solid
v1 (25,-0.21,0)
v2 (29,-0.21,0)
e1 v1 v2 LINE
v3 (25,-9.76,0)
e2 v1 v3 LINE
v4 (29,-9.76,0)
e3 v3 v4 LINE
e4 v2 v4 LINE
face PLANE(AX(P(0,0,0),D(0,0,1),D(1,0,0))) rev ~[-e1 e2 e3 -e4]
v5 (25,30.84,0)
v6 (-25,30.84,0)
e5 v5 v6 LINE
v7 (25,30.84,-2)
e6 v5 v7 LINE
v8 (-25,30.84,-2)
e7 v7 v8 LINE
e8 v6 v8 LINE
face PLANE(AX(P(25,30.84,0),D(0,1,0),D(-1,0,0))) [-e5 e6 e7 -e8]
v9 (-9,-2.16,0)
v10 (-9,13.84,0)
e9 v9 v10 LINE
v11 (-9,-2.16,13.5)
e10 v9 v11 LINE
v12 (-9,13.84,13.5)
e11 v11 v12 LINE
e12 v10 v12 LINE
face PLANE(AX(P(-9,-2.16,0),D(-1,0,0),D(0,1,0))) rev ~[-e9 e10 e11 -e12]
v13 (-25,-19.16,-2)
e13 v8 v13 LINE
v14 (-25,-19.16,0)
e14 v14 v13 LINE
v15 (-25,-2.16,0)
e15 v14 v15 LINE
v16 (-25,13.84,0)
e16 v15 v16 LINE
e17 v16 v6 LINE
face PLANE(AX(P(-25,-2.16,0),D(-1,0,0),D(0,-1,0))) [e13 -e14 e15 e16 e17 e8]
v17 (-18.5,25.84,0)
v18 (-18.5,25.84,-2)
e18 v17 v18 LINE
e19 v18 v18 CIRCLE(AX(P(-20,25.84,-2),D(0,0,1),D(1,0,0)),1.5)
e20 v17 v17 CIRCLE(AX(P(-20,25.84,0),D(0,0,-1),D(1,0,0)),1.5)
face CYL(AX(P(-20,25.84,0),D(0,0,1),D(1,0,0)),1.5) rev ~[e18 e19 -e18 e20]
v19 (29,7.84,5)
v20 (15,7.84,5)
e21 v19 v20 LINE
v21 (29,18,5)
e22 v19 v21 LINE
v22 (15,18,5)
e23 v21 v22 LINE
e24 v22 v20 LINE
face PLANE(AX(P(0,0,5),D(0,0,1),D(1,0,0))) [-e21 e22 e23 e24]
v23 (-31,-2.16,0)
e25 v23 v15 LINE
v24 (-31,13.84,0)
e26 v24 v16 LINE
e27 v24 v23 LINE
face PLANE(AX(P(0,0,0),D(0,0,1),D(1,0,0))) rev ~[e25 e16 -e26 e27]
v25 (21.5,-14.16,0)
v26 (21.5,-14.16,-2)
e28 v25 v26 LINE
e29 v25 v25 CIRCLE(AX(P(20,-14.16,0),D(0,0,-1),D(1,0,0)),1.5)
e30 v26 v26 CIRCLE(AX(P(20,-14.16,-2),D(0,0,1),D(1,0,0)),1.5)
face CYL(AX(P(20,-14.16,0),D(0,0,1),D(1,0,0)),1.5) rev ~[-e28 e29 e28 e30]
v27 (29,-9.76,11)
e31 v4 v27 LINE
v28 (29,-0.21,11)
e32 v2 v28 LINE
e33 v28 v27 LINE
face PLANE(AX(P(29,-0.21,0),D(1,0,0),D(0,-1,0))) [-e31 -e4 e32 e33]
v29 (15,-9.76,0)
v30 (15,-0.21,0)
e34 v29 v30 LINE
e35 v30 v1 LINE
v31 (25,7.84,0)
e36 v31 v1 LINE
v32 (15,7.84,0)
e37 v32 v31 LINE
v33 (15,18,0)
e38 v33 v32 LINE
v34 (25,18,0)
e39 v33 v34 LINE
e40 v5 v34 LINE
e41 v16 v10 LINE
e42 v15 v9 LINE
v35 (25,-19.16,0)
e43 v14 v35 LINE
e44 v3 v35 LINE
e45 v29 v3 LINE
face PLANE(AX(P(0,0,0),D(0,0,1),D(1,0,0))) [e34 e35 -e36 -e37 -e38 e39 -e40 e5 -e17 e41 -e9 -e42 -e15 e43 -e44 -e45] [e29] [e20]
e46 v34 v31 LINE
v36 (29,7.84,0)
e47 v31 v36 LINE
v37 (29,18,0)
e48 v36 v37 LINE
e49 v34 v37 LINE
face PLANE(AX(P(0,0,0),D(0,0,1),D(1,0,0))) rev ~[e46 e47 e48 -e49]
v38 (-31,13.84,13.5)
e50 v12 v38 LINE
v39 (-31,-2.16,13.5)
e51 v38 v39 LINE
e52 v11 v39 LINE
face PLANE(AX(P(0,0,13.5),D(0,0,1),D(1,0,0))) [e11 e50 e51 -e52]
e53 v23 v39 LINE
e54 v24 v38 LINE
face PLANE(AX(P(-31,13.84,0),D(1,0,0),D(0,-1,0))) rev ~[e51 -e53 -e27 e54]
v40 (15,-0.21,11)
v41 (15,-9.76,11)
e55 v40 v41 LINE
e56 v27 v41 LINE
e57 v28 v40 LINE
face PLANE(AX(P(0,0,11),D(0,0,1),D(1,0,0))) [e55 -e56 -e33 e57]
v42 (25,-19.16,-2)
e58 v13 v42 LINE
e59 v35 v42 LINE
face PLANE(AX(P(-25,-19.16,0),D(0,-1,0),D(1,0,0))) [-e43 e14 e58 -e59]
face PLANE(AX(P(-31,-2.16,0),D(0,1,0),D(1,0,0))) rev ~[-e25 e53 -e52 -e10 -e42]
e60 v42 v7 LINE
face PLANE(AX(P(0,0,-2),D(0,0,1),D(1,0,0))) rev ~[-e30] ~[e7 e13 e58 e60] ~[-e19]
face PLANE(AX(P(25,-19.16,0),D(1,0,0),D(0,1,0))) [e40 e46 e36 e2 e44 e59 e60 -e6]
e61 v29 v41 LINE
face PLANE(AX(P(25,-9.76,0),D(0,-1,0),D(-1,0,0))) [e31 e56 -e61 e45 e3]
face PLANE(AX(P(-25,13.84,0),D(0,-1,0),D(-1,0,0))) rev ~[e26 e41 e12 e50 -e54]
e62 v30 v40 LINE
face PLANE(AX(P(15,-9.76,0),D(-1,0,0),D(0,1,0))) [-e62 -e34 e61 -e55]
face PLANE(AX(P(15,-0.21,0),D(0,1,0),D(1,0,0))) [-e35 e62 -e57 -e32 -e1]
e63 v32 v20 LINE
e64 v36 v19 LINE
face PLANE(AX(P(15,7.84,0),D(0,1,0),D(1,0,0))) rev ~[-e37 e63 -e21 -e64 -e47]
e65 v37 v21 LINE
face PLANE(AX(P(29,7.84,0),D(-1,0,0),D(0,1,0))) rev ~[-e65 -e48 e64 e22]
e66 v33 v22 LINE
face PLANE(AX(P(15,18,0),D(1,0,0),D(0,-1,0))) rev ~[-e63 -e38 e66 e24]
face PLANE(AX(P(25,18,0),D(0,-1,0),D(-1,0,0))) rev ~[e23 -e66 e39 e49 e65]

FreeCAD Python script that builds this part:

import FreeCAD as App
import Part
import Sketcher

V = App.Vector

doc = App.newDocument("Part")
body = doc.addObject("PartDesign::Body", "Body")

# Sketch on XY plane
sketch1 = doc.addObject("Sketcher::SketchObject", "Sketch")
body.addObject(sketch1)
sketch1.AttachmentSupport = (doc.XY_Plane, [""])
sketch1.MapMode = "FlatFace"
sketch1.addGeometry([
    Part.LineSegment(V(-25, -19.16, 0), V(25, -19.16, 0)),
    Part.LineSegment(V(25, -19.16, 0), V(25, 30.84, 0)),
    Part.LineSegment(V(25, 30.84, 0), V(-25, 30.84, 0)),
    Part.LineSegment(V(-25, 30.84, 0), V(-25, -19.16, 0)),
], False)
sketch1.addConstraint([
    Sketcher.Constraint("Coincident", 0, 2, 1, 1),
    Sketcher.Constraint("Coincident", 1, 2, 2, 1),
    Sketcher.Constraint("Coincident", 2, 2, 3, 1),
    Sketcher.Constraint("Coincident", 3, 2, 0, 1),
    Sketcher.Constraint("Horizontal", 0),
    Sketcher.Constraint("Vertical", 1),
    Sketcher.Constraint("Horizontal", 2),
    Sketcher.Constraint("Vertical", 3),
    Sketcher.Constraint("Equal", 2, 1),
    Sketcher.Constraint("DistanceX", 0, 1, 0, 2, 50.0),
    Sketcher.Constraint("DistanceX", -1, 1, 0, 2, 25.0),
    Sketcher.Constraint("DistanceY", 0, 2, -1, 1, 19.16),
])
pad1 = doc.addObject("PartDesign::Pad", "Pad")
body.addObject(pad1)
pad1.Profile = sketch1
pad1.Length = 2
pad1.Reversed = True

# Sketch on XY plane
sketch2 = doc.addObject("Sketcher::SketchObject", "Sketch001")
body.addObject(sketch2)
sketch2.AttachmentSupport = (doc.XY_Plane, [""])
sketch2.MapMode = "FlatFace"
sketch2.addGeometry([
    Part.LineSegment(V(-31, -2.16, 0), V(-9, -2.16, 0)),
    Part.LineSegment(V(-9, -2.16, 0), V(-9, 13.84, 0)),
    Part.LineSegment(V(-9, 13.84, 0), V(-31, 13.84, 0)),
    Part.LineSegment(V(-31, 13.84, 0), V(-31, -2.16, 0)),
], False)
sketch2.addConstraint([
    Sketcher.Constraint("Coincident", 0, 2, 1, 1),
    Sketcher.Constraint("Coincident", 1, 2, 2, 1),
    Sketcher.Constraint("Coincident", 2, 2, 3, 1),
    Sketcher.Constraint("Coincident", 3, 2, 0, 1),
    Sketcher.Constraint("Horizontal", 0),
    Sketcher.Constraint("Vertical", 1),
    Sketcher.Constraint("Horizontal", 2),
    Sketcher.Constraint("Vertical", 3),
    Sketcher.Constraint("DistanceX", 0, 1, 0, 2, 22.0),
    Sketcher.Constraint("DistanceY", 1, 1, 1, 2, 16.0),
    Sketcher.Constraint("DistanceX", 0, 2, -1, 1, 9.0),
    Sketcher.Constraint("DistanceY", 0, 2, -1, 1, 2.16),
])
pad2 = doc.addObject("PartDesign::Pad", "Pad001")
body.addObject(pad2)
pad2.Profile = sketch2
pad2.Length = 13.5

# Sketch on XY plane
sketch3 = doc.addObject("Sketcher::SketchObject", "Sketch002")
body.addObject(sketch3)
sketch3.AttachmentSupport = (doc.XY_Plane, [""])
sketch3.MapMode = "FlatFace"
sketch3.addGeometry([
    Part.LineSegment(V(29, -9.76, 0), V(29, -0.21, 0)),
    Part.LineSegment(V(29, -0.21, 0), V(15, -0.21, 0)),
    Part.LineSegment(V(15, -0.21, 0), V(15, -9.76, 0)),
    Part.LineSegment(V(15, -9.76, 0), V(29, -9.76, 0)),
], False)
sketch3.addConstraint([
    Sketcher.Constraint("Coincident", 0, 2, 1, 1),
    Sketcher.Constraint("Coincident", 1, 2, 2, 1),
    Sketcher.Constraint("Coincident", 2, 2, 3, 1),
    Sketcher.Constraint("Coincident", 3, 2, 0, 1),
    Sketcher.Constraint("Vertical", 0),
    Sketcher.Constraint("Horizontal", 1),
    Sketcher.Constraint("Vertical", 2),
    Sketcher.Constraint("Horizontal", 3),
    Sketcher.Constraint("DistanceX", 1, 2, 1, 1, 14.0),
    Sketcher.Constraint("DistanceY", 0, 1, 0, 2, 9.55),
    Sketcher.Constraint("DistanceX", -1, 1, 0, 2, 29.0),
    Sketcher.Constraint("DistanceY", 0, 2, -1, 1, 0.21),
])
pad3 = doc.addObject("PartDesign::Pad", "Pad002")
body.addObject(pad3)
pad3.Profile = sketch3
pad3.Length = 11

# Sketch on XY plane
sketch4 = doc.addObject("Sketcher::SketchObject", "Sketch003")
body.addObject(sketch4)
sketch4.AttachmentSupport = (doc.XY_Plane, [""])
sketch4.MapMode = "FlatFace"
sketch4.addGeometry([
    Part.LineSegment(V(15, 7.84, 0), V(29, 7.84, 0)),
    Part.LineSegment(V(29, 7.84, 0), V(29, 18, 0)),
    Part.LineSegment(V(29, 18, 0), V(15, 18, 0)),
    Part.LineSegment(V(15, 18, 0), V(15, 7.84, 0)),
], False)
sketch4.addConstraint([
    Sketcher.Constraint("Coincident", 0, 2, 1, 1),
    Sketcher.Constraint("Coincident", 1, 2, 2, 1),
    Sketcher.Constraint("Coincident", 2, 2, 3, 1),
    Sketcher.Constraint("Coincident", 3, 2, 0, 1),
    Sketcher.Constraint("Horizontal", 0),
    Sketcher.Constraint("Vertical", 1),
    Sketcher.Constraint("Horizontal", 2),
    Sketcher.Constraint("Vertical", 3),
    Sketcher.Constraint("DistanceX", 0, 1, 0, 2, 14.0),
    Sketcher.Constraint("DistanceY", -1, 1, 1, 2, 18.0),
    Sketcher.Constraint("DistanceY", 1, 1, 1, 2, 10.16),
    Sketcher.Constraint("DistanceX", -1, 1, 0, 2, 29.0),
])
pad4 = doc.addObject("PartDesign::Pad", "Pad003")
body.addObject(pad4)
pad4.Profile = sketch4
pad4.Length = 5

# Sketch on XY plane
sketch5 = doc.addObject("Sketcher::SketchObject", "Sketch004")
body.addObject(sketch5)
sketch5.AttachmentSupport = (doc.XY_Plane, [""])
sketch5.MapMode = "FlatFace"
sketch5.addGeometry([
    Part.Circle(V(20, -14.16, 0), V(0, 0, 1), 1.5),
    Part.Circle(V(-20, 25.84, 0), V(0, 0, 1), 1.5),
], False)
sketch5.addConstraint([
    Sketcher.Constraint("Equal", 0, 1),
    Sketcher.Constraint("Diameter", 0, 3.0),
    Sketcher.Constraint("DistanceX", -1, 1, 0, 3, 20.0),
    Sketcher.Constraint("DistanceX", 1, 3, -1, 1, 20.0),
    Sketcher.Constraint("DistanceY", 0, 3, 1, 3, 40.0),
    Sketcher.Constraint("DistanceY", 0, 3, -1, 1, 14.16),
])
pocket1 = doc.addObject("PartDesign::Pocket", "Pocket")
body.addObject(pocket1)
pocket1.Profile = sketch5
pocket1.Type = "UpToFirst"

doc.recompute()
